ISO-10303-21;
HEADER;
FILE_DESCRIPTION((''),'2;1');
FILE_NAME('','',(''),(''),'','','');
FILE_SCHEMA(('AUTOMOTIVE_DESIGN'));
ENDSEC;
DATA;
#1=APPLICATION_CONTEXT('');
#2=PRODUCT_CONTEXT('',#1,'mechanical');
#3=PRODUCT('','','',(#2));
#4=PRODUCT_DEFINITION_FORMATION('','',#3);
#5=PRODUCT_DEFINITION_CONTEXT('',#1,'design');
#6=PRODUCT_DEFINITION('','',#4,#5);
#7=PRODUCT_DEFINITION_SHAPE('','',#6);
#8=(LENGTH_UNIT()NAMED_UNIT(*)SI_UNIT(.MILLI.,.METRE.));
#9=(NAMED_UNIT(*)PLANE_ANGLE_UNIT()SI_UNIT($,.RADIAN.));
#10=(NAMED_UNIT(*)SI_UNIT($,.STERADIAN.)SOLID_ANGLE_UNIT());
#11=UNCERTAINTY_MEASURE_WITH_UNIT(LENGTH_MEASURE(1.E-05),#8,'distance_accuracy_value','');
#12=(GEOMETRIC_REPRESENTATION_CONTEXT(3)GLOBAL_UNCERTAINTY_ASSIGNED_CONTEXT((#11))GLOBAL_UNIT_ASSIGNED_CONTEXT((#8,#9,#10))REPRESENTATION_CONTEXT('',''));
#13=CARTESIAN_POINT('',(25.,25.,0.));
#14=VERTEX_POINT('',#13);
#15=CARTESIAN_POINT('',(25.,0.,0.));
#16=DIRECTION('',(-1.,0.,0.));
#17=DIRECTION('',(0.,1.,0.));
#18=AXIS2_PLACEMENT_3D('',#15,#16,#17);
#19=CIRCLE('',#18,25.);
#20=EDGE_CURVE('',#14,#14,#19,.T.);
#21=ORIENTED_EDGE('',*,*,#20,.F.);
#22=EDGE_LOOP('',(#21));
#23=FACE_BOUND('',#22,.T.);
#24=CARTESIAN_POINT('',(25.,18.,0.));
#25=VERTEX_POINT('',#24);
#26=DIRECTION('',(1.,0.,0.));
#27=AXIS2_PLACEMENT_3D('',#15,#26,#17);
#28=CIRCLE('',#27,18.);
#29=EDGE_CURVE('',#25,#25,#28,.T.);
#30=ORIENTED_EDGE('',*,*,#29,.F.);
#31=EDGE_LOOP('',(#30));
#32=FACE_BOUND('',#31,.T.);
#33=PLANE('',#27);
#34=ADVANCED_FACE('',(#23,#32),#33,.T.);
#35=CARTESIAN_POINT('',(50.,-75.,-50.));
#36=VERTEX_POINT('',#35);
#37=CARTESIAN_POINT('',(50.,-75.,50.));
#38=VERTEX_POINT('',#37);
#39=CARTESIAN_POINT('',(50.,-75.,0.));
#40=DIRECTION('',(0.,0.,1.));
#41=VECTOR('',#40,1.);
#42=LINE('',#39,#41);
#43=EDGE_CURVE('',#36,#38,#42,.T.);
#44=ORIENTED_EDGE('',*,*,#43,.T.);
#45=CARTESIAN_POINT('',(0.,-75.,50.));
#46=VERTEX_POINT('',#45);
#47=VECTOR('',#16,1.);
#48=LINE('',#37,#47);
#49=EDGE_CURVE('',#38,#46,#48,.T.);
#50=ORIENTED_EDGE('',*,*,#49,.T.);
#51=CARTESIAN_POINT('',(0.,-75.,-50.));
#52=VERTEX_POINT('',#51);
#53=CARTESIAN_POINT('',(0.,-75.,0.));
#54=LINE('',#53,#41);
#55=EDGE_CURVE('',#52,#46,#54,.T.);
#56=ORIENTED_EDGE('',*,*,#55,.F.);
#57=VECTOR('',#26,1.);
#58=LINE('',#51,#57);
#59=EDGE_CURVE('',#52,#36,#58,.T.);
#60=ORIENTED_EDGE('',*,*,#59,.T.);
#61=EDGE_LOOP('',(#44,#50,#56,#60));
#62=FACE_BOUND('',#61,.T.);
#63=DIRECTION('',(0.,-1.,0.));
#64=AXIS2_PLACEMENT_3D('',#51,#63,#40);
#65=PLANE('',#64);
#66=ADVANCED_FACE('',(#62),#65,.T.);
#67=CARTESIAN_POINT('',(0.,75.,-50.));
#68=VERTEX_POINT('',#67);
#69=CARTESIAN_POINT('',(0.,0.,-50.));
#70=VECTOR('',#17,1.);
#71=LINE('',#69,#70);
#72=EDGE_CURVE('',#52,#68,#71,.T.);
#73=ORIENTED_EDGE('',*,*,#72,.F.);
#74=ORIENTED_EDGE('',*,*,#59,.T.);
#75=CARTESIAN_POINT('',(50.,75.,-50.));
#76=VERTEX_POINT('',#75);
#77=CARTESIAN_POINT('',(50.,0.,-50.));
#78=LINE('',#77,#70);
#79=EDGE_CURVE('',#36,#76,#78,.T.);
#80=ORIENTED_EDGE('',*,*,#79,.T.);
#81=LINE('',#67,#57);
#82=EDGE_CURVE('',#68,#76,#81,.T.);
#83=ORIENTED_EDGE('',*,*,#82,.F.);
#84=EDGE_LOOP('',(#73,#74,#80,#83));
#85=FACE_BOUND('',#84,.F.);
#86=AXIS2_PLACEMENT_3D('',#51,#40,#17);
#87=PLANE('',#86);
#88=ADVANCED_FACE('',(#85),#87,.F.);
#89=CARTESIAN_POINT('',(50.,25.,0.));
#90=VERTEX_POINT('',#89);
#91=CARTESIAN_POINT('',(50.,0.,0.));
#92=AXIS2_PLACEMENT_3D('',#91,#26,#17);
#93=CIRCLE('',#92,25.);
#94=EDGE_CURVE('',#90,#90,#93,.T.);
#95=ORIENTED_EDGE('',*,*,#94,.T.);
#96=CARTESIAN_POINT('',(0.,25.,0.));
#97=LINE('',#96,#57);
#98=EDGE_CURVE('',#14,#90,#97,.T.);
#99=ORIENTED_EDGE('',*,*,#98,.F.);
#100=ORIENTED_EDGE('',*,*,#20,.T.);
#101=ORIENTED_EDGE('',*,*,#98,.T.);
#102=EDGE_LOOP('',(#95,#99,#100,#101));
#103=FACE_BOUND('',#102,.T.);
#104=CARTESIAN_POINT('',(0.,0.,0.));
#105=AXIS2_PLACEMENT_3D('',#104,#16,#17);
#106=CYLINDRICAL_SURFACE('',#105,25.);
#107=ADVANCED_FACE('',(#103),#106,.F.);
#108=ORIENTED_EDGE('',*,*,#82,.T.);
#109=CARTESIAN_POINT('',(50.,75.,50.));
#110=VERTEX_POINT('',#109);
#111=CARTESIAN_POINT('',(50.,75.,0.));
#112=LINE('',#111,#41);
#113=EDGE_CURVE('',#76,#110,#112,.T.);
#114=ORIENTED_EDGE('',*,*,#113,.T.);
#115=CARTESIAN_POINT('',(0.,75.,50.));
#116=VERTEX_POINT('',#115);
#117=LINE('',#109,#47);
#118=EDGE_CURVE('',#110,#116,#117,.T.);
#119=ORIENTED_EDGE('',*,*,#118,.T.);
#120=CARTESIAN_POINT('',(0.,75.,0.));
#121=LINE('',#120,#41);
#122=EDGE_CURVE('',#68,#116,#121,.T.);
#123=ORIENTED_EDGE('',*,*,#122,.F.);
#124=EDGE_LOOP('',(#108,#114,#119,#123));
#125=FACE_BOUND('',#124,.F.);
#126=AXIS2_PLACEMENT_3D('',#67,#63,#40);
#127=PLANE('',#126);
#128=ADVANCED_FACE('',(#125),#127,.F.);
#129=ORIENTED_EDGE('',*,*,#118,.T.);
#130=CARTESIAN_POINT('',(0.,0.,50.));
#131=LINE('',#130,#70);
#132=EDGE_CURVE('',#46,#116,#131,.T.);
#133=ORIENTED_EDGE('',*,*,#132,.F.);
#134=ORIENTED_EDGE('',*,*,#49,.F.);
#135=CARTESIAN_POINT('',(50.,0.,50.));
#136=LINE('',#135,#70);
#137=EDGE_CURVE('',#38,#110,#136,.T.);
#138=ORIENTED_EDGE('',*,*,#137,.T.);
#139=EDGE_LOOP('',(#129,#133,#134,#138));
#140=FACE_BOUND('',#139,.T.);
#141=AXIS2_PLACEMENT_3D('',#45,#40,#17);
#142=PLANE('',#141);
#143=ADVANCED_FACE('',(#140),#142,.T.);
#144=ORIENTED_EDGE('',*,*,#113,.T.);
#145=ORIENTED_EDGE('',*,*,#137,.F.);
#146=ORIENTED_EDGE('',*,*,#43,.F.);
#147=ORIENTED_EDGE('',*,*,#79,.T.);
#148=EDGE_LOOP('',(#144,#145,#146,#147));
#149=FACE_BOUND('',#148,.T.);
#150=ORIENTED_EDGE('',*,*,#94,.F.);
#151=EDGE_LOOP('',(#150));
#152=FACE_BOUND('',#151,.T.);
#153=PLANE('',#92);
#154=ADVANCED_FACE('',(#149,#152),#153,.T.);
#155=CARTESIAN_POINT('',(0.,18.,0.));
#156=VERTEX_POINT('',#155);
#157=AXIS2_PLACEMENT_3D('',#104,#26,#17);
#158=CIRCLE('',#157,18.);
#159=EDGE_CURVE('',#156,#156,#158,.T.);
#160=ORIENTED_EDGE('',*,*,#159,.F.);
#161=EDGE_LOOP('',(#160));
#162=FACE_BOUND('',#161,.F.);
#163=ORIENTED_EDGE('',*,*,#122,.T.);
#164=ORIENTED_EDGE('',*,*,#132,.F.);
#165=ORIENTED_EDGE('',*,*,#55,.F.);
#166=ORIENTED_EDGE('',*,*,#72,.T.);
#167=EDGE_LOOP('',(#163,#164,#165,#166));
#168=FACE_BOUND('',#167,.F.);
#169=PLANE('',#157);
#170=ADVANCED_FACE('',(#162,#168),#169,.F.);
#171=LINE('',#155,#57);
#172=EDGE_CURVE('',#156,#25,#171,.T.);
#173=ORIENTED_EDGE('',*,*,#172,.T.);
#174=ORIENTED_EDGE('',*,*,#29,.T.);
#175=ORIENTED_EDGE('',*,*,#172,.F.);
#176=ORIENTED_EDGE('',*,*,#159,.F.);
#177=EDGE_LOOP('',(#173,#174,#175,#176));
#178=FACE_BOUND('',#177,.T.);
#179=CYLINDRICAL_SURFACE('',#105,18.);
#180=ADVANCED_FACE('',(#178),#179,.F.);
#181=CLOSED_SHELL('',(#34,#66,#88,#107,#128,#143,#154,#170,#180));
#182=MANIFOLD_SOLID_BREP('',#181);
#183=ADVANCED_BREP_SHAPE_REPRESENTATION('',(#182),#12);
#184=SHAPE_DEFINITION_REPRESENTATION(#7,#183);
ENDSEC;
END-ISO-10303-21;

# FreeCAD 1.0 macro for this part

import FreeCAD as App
import Part
import Sketcher
from FreeCAD import Vector
Q = App.Units.Quantity


def add_polygon(sketch, points):
    """Adds a closed chain of lines whose ends are joined by coincident constraints."""
    first, n = sketch.GeometryCount, len(points)
    for a, b in zip(points, points[1:] + points[:1]):
        sketch.addGeometry(Part.LineSegment(App.Vector(*a, 0), App.Vector(*b, 0)), False)
    for i in range(n):
        sketch.addConstraint(Sketcher.Constraint("Coincident", first + i, 2, first + (i + 1) % n, 1))

doc = App.newDocument("Part")
body = doc.addObject("PartDesign::Body", "Body")

sketch1 = body.newObject("Sketcher::SketchObject", "Sketch")
sketch1.AttachmentSupport = (doc.getObject("YZ_Plane"), [""])
sketch1.MapMode = "FlatFace"
add_polygon(sketch1, [(-75, 50), (-75, -50), (75, -50), (75, 50)])
sketch1.addGeometry(Part.Circle(Vector(0, 0, 0), Vector(0, 0, 1), 18), False)
sketch1.addConstraint([
    Sketcher.Constraint("Vertical", 0),
    Sketcher.Constraint("Horizontal", 1),
    Sketcher.Constraint("Vertical", 2),
    Sketcher.Constraint("Horizontal", 3),
    Sketcher.Constraint("Coincident", 4, 3, -1, 1),
    Sketcher.Constraint("Symmetric", 0, 2, 2, 2, -1, 1),
    Sketcher.Constraint("Diameter", 4, Q("36 mm")),
    Sketcher.Constraint("DistanceX", 1, 1, 1, 2, Q("150 mm")),
    Sketcher.Constraint("DistanceY", 0, 2, 0, 1, Q("100 mm")),
])
pad1 = body.newObject("PartDesign::Pad", "Pad")
pad1.Profile = sketch1
pad1.Length = 25

sketch2 = body.newObject("Sketcher::SketchObject", "Sketch001")
sketch2.AttachmentSupport = (doc.getObject("YZ_Plane"), [""])
sketch2.MapMode = "FlatFace"
add_polygon(sketch2, [(-75, 50), (-75, -50), (75, -50), (75, 50)])
sketch2.addGeometry(Part.Circle(Vector(0, 0, 0), Vector(0, 0, 1), 25), False)
sketch2.addConstraint([
    Sketcher.Constraint("Vertical", 0),
    Sketcher.Constraint("Horizontal", 1),
    Sketcher.Constraint("Vertical", 2),
    Sketcher.Constraint("Horizontal", 3),
    Sketcher.Constraint("Coincident", 4, 3, -1, 1),
    Sketcher.Constraint("Symmetric", 0, 2, 2, 2, -1, 1),
    Sketcher.Constraint("Diameter", 4, Q("50 mm")),
    Sketcher.Constraint("DistanceX", 1, 1, 1, 2, Q("150 mm")),
    Sketcher.Constraint("DistanceY", 0, 2, 0, 1, Q("100 mm")),
])
pad2 = body.newObject("PartDesign::Pad", "Pad001")
pad2.Profile = sketch2
pad2.Length = 50

doc.recompute()
